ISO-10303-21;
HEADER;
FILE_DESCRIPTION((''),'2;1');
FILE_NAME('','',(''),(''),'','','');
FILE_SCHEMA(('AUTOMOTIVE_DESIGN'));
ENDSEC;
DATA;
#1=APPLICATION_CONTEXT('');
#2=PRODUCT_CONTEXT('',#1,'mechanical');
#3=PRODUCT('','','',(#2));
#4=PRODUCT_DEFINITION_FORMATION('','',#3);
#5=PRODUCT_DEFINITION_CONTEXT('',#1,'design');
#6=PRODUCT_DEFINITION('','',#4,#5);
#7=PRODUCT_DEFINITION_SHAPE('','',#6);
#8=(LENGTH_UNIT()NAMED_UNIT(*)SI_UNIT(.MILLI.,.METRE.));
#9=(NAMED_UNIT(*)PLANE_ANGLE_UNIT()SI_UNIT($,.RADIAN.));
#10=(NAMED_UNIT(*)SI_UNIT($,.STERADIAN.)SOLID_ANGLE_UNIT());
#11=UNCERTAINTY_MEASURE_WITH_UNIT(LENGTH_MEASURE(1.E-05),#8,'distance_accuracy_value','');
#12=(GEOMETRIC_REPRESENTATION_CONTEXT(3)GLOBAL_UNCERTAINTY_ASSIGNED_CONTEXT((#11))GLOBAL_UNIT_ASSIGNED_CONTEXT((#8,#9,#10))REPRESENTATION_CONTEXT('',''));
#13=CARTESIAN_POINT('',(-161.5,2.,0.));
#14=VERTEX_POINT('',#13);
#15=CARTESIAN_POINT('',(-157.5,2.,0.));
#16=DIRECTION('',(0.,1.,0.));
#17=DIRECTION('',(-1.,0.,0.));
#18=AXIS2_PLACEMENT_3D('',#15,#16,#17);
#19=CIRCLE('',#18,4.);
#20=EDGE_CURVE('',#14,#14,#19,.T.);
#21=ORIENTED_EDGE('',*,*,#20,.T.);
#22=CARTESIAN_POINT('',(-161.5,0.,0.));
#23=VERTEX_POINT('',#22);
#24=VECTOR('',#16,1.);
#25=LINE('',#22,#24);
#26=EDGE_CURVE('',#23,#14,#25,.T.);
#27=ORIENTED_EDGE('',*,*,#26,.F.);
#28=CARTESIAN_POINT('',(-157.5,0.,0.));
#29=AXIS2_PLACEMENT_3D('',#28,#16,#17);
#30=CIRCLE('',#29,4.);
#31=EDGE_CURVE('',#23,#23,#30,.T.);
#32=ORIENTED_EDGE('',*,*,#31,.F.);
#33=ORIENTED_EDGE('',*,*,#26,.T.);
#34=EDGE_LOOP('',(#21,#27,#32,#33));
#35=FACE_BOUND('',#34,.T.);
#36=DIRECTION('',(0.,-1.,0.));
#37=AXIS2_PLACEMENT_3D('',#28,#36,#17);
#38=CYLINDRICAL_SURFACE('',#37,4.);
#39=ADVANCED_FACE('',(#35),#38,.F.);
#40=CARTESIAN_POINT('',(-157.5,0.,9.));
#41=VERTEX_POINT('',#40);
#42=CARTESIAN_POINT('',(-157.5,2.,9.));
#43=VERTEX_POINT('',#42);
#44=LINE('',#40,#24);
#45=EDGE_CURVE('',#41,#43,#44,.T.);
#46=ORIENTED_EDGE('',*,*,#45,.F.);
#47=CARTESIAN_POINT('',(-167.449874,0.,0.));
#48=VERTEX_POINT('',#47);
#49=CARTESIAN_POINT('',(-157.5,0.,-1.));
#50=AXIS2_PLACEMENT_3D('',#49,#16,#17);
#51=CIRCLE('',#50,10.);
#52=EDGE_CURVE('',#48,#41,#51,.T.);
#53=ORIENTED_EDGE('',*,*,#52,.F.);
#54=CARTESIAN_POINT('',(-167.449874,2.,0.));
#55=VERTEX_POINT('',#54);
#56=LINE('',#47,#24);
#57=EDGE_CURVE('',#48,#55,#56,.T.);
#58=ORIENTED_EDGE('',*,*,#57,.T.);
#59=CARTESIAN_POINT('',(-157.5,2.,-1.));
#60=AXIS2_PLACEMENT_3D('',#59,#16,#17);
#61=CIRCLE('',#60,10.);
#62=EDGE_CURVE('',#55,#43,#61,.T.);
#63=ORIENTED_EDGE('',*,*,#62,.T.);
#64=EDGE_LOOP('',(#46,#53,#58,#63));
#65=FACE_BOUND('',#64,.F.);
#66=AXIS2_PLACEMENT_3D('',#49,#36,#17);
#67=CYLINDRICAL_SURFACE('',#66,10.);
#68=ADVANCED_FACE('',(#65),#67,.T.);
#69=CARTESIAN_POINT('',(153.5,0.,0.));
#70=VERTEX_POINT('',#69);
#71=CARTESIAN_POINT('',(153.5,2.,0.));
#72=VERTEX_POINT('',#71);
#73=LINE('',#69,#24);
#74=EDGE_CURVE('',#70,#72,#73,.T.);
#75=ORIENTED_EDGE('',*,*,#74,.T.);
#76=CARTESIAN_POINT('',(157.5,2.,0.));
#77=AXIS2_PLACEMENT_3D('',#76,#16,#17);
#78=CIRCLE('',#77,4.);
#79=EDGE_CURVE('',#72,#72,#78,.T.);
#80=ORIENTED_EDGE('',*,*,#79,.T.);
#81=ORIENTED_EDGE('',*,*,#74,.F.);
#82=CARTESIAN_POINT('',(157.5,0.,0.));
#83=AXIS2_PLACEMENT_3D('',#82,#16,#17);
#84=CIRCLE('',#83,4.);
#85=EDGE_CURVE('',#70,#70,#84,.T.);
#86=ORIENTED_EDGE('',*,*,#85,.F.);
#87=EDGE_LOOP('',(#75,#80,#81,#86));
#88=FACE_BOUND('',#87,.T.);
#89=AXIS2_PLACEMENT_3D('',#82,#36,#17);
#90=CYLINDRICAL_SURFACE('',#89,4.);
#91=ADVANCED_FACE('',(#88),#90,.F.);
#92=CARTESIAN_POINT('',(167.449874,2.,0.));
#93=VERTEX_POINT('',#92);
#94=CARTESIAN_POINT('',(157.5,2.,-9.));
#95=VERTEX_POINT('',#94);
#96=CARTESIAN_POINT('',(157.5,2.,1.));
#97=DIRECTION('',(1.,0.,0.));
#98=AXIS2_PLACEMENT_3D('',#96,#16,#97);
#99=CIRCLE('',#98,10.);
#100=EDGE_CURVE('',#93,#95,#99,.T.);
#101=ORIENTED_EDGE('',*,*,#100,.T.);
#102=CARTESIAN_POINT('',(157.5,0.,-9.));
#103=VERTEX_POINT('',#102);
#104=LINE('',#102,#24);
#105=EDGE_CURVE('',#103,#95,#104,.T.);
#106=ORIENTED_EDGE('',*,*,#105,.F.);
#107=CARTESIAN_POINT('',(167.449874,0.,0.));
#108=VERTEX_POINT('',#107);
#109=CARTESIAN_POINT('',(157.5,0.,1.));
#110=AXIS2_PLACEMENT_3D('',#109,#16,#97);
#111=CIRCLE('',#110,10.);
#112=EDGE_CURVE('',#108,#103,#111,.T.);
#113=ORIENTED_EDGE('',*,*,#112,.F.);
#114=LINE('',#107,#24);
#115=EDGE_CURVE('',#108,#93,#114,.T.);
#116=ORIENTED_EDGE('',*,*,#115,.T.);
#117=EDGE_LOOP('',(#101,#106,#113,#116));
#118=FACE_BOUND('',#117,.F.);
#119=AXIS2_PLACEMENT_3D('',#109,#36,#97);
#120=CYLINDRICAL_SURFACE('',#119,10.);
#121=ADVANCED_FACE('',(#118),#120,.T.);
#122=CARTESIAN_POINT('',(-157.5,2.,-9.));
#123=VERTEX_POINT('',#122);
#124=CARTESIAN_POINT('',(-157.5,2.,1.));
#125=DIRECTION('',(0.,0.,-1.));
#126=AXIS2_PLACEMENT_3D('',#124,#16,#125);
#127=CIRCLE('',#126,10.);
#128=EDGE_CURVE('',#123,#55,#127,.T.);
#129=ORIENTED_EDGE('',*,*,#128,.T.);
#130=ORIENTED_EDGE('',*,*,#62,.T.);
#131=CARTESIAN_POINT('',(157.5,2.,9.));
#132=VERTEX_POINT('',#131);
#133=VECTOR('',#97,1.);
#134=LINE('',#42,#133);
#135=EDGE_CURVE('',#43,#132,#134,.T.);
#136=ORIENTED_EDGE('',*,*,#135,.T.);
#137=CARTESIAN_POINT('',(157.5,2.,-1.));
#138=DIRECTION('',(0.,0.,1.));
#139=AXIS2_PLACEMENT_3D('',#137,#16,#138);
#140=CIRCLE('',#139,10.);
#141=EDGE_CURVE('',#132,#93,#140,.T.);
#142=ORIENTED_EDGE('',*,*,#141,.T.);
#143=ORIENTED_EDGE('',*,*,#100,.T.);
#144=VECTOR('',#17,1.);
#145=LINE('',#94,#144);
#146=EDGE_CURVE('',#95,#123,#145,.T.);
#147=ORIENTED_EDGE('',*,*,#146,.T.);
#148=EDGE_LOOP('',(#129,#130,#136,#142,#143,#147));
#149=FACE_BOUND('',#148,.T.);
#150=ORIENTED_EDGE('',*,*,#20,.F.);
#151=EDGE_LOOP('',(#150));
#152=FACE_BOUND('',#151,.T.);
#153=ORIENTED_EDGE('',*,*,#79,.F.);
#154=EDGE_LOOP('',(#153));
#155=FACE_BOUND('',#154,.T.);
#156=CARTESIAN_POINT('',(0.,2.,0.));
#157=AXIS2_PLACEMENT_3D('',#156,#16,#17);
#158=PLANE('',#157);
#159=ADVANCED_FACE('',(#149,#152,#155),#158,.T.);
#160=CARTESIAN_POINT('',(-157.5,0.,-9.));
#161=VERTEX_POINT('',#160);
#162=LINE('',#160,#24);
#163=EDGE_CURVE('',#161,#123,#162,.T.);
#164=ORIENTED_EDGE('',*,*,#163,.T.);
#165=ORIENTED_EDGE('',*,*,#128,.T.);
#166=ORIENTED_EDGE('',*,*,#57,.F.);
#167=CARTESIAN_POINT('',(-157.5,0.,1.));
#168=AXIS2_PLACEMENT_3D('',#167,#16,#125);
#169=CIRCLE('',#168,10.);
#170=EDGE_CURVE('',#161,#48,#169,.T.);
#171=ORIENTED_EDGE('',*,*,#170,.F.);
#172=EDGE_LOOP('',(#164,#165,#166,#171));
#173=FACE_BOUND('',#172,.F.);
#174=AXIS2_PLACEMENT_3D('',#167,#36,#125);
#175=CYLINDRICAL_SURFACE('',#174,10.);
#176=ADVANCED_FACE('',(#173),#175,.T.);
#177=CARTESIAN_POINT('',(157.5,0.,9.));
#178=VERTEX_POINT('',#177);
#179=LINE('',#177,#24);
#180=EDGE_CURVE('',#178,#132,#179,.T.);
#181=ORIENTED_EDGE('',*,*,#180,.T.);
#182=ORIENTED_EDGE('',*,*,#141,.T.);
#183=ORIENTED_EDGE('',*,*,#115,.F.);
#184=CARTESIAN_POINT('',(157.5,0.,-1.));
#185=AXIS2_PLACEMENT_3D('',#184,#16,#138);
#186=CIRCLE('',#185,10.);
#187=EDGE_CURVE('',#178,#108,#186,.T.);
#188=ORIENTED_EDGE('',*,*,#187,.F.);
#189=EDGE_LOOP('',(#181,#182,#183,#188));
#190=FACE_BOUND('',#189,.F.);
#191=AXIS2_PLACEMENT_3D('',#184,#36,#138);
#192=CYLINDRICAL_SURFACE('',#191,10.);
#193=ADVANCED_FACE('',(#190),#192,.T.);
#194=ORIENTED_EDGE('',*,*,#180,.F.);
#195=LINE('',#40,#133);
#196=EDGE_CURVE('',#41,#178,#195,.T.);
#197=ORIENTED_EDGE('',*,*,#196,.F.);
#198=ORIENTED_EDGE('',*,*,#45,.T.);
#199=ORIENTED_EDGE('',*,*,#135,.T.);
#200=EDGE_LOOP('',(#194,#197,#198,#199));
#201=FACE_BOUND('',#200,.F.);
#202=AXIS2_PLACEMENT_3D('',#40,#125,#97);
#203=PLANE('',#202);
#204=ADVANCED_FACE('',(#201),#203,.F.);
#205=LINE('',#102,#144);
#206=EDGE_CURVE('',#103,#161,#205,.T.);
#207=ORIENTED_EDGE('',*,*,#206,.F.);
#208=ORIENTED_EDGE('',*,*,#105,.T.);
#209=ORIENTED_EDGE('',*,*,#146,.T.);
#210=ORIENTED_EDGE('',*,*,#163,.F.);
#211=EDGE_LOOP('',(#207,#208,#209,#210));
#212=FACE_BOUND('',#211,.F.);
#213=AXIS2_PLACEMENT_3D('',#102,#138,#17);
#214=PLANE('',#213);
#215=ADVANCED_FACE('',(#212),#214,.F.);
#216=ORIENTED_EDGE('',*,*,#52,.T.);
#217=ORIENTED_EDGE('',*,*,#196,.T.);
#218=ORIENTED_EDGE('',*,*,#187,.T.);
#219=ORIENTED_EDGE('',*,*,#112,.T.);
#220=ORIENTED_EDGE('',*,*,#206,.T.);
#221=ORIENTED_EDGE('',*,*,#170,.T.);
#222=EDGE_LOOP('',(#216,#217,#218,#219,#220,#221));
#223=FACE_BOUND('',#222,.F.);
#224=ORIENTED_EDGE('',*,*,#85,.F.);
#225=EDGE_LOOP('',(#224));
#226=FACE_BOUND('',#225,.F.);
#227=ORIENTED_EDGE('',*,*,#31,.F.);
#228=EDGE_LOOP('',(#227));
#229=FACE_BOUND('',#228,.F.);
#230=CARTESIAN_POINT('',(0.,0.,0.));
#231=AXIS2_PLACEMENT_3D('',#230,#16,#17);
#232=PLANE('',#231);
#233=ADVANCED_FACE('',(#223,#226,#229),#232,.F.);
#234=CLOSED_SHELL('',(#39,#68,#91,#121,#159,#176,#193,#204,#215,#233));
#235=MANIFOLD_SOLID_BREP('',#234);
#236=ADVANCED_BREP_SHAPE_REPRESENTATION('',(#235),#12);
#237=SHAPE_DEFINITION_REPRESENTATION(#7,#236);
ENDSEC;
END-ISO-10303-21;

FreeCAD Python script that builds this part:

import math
import FreeCAD as App
import Part
import Sketcher
from FreeCAD import Vector

doc = App.newDocument("Part")
params = doc.addObject("Spreadsheet::Sheet", "Params")
for row, (alias, value) in enumerate([
    ("sketch1_diameter", "8 mm"),
    ("sketch1_radius", "10 mm"),
    ("sketch1_width", "315 mm"),
    ("pad1_length", "2 mm"),
], start=1):
    params.set(f"A{row}", alias)
    params.set(f"B{row}", "=" + value)
    params.setAlias(f"B{row}", alias)

body = doc.addObject("PartDesign::Body", "Body")

# Sketch on XZ plane
sketch1 = doc.addObject("Sketcher::SketchObject", "Sketch")
body.addObject(sketch1)
sketch1.AttachmentSupport = (doc.XZ_Plane, [""])
sketch1.MapMode = "FlatFace"
sketch1.addGeometry([
    Part.ArcOfCircle(Part.Circle(Vector(157.5, 1, 0), Vector(0, 0, 1), 10), math.radians(-90), math.radians(-5.73917)),  # 0
    Part.LineSegment(Vector(157.5, -9, 0), Vector(-157.5, -9, 0)),  # 1
    Part.ArcOfCircle(Part.Circle(Vector(-157.5, 1, 0), Vector(0, 0, 1), 10), math.radians(-174.26083), math.radians(-90)),  # 2
    Part.ArcOfCircle(Part.Circle(Vector(-157.5, -1, 0), Vector(0, 0, 1), 10), math.radians(90), math.radians(174.26083)),  # 3
    Part.LineSegment(Vector(-157.5, 9, 0), Vector(157.5, 9, 0)),  # 4
    Part.ArcOfCircle(Part.Circle(Vector(157.5, -1, 0), Vector(0, 0, 1), 10), math.radians(5.73917), math.radians(90)),  # 5
    Part.Circle(Vector(157.5, 0, 0), Vector(0, 0, 1), 4),  # 6
    Part.Circle(Vector(-157.5, 0, 0), Vector(0, 0, 1), 4),  # 7
], False)
sketch1.addConstraint([
    Sketcher.Constraint("Tangent", 0, 1, 1, 1),
    Sketcher.Constraint("Tangent", 1, 2, 2, 2),
    Sketcher.Constraint("Coincident", 2, 1, 3, 2),
    Sketcher.Constraint("Tangent", 3, 1, 4, 1),
    Sketcher.Constraint("Tangent", 4, 2, 5, 2),
    Sketcher.Constraint("Coincident", 5, 1, 0, 2),
    Sketcher.Constraint("Horizontal", 1),
    Sketcher.Constraint("Horizontal", 4),
    Sketcher.Constraint("Equal", 0, 2),
    Sketcher.Constraint("Equal", 2, 3),
    Sketcher.Constraint("Equal", 3, 5),
    Sketcher.Constraint("Equal", 6, 7),
    Sketcher.Constraint("Symmetric", 0, 3, 3, 3, -1, 1),
    Sketcher.Constraint("Symmetric", 6, 3, 7, 3, -1, 1),
    Sketcher.Constraint("Symmetric", 2, 1, 5, 1, -2),
    Sketcher.Constraint("PointOnObject", 6, 3, -1),
    Sketcher.Constraint("Vertical", 5, 3, 6, 3),
    Sketcher.Constraint("Diameter", 6, 8.0),
    Sketcher.Constraint("Radius", 0, 10.0),
    Sketcher.Constraint("DistanceY", 0, 1, 5, 3, 8.0),
    Sketcher.Constraint("DistanceX", 1, 2, 1, 1, 315.0),
])
sketch1.setExpression("Constraints[17]", "Params.sketch1_diameter")
sketch1.setExpression("Constraints[18]", "Params.sketch1_radius")
sketch1.setExpression("Constraints[20]", "Params.sketch1_width")
pad1 = doc.addObject("PartDesign::Pad", "Pad")
body.addObject(pad1)
pad1.Profile = sketch1
pad1.setExpression("Length", "Params.pad1_length")
pad1.Reversed = True

doc.recompute()
